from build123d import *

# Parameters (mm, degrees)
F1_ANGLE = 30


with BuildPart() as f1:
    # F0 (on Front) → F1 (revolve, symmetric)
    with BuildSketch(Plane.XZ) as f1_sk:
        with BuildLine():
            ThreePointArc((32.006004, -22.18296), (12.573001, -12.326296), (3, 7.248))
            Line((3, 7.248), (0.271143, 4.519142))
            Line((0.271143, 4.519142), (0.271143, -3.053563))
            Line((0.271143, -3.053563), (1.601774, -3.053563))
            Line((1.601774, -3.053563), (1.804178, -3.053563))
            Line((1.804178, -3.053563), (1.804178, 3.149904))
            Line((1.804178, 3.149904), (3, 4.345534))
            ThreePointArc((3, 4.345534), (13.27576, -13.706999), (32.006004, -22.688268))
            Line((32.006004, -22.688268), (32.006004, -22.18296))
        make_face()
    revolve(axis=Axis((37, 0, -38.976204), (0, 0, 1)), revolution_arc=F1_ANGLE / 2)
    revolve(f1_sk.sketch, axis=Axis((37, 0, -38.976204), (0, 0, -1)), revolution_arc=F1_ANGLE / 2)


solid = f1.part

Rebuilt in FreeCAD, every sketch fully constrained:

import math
import FreeCAD as App
import Part
import Sketcher
Q = App.Units.Quantity

doc = App.newDocument("Part")
body = doc.addObject("PartDesign::Body", "Body")

sketch1 = body.newObject("Sketcher::SketchObject", "Sketch")
sketch1.AttachmentSupport = (doc.getObject("XZ_Plane"), [""])
sketch1.MapMode = "FlatFace"
sketch1.addGeometry([
    Part.ArcOfCircle(Part.Circle(App.Vector(37, 11.7, 0), App.Vector(0, 0, 1), 34.3), math.radians(-172), math.radians(-98)),
    Part.LineSegment(App.Vector(3, 7.2, 0), App.Vector(0.3, 4.5, 0)),
    Part.LineSegment(App.Vector(0.3, 4.5, 0), App.Vector(0.3, -3.1, 0)),
    Part.LineSegment(App.Vector(0.3, -3.1, 0), App.Vector(1.8, -3.1, 0)),
    Part.LineSegment(App.Vector(1.8, -3.1, 0), App.Vector(1.8, 3.1, 0)),
    Part.LineSegment(App.Vector(1.8, 3.1, 0), App.Vector(3, 4.3, 0)),
    Part.ArcOfCircle(Part.Circle(App.Vector(37, 11.7, 0), App.Vector(0, 0, 1), 34.8), math.radians(-168), math.radians(-98)),
    Part.LineSegment(App.Vector(32, -22.7, 0), App.Vector(32, -22.2, 0)),
], False)
sketch1.addGeometry(Part.LineSegment(App.Vector(37, -22.7, 0), App.Vector(37, 11.7, 0)), True)
sketch1.addConstraint([
    Sketcher.Constraint("Coincident", 0, 1, 1, 1),
    Sketcher.Constraint("Coincident", 1, 2, 2, 1),
    Sketcher.Constraint("Coincident", 2, 2, 3, 1),
    Sketcher.Constraint("Coincident", 3, 2, 4, 1),
    Sketcher.Constraint("Coincident", 4, 2, 5, 1),
    Sketcher.Constraint("Coincident", 5, 2, 6, 1),
    Sketcher.Constraint("Coincident", 6, 2, 7, 1),
    Sketcher.Constraint("Coincident", 7, 2, 0, 2),
    Sketcher.Constraint("Vertical", 2),
    Sketcher.Constraint("Horizontal", 3),
    Sketcher.Constraint("Vertical", 4),
    Sketcher.Constraint("Vertical", 7),
    Sketcher.Constraint("Vertical", 8),
    Sketcher.Constraint("Coincident", 6, 3, 0, 3),
    Sketcher.Constraint("Coincident", 8, 2, 0, 3),
    Sketcher.Constraint("Horizontal", 6, 2, 8, 1),
    Sketcher.Constraint("Vertical", 0, 1, 5, 2),
    Sketcher.Constraint("Angle", 1, Q("-134.99999 deg")),
    Sketcher.Constraint("DistanceX", -1, 1, 0, 3, Q("37.000001 mm")),
    Sketcher.Constraint("DistanceX", -1, 1, 0, 1, Q("3 mm")),
    Sketcher.Constraint("Radius", 6, Q("34.796501 mm")),
    Sketcher.Constraint("DistanceY", 0, 1, 6, 3, Q("4.499999 mm")),
    Sketcher.Constraint("DistanceY", -1, 1, 0, 3, Q("11.748 mm")),
    Sketcher.Constraint("DistanceY", 8, 1, 8, 2, Q("34.436268 mm")),
    Sketcher.Constraint("Distance", 5, Q("1.691012 mm")),
    Sketcher.Constraint("DistanceX", 3, 1, 3, 2, Q("1.533035 mm")),
    Sketcher.Constraint("DistanceY", 2, 2, 2, 1, Q("7.572705 mm")),
    Sketcher.Constraint("DistanceY", 4, 1, 4, 2, Q("6.203467 mm")),
])
revolution = body.newObject("PartDesign::Revolution", "Revolution")
revolution.Profile = sketch1
revolution.ReferenceAxis = (sketch1, ["Axis0"])
revolution.Angle = 15

sketch2 = body.newObject("Sketcher::SketchObject", "Sketch001")
sketch2.AttachmentSupport = (doc.getObject("XZ_Plane"), [""])
sketch2.MapMode = "FlatFace"
sketch2.addGeometry([
    Part.ArcOfCircle(Part.Circle(App.Vector(37, 11.7, 0), App.Vector(0, 0, 1), 34.3), math.radians(-172), math.radians(-98)),
    Part.LineSegment(App.Vector(3, 7.2, 0), App.Vector(0.3, 4.5, 0)),
    Part.LineSegment(App.Vector(0.3, 4.5, 0), App.Vector(0.3, -3.1, 0)),
    Part.LineSegment(App.Vector(0.3, -3.1, 0), App.Vector(1.8, -3.1, 0)),
    Part.LineSegment(App.Vector(1.8, -3.1, 0), App.Vector(1.8, 3.1, 0)),
    Part.LineSegment(App.Vector(1.8, 3.1, 0), App.Vector(3, 4.3, 0)),
    Part.ArcOfCircle(Part.Circle(App.Vector(37, 11.7, 0), App.Vector(0, 0, 1), 34.8), math.radians(-168), math.radians(-98)),
    Part.LineSegment(App.Vector(32, -22.7, 0), App.Vector(32, -22.2, 0)),
], False)
sketch2.addGeometry(Part.LineSegment(App.Vector(37, 11.7, 0), App.Vector(37, -22.7, 0)), True)
sketch2.addConstraint([
    Sketcher.Constraint("Coincident", 0, 1, 1, 1),
    Sketcher.Constraint("Coincident", 1, 2, 2, 1),
    Sketcher.Constraint("Coincident", 2, 2, 3, 1),
    Sketcher.Constraint("Coincident", 3, 2, 4, 1),
    Sketcher.Constraint("Coincident", 4, 2, 5, 1),
    Sketcher.Constraint("Coincident", 5, 2, 6, 1),
    Sketcher.Constraint("Coincident", 6, 2, 7, 1),
    Sketcher.Constraint("Coincident", 7, 2, 0, 2),
    Sketcher.Constraint("Vertical", 2),
    Sketcher.Constraint("Horizontal", 3),
    Sketcher.Constraint("Vertical", 4),
    Sketcher.Constraint("Vertical", 7),
    Sketcher.Constraint("Vertical", 8),
    Sketcher.Constraint("Coincident", 6, 3, 0, 3),
    Sketcher.Constraint("Coincident", 8, 1, 0, 3),
    Sketcher.Constraint("Horizontal", 6, 2, 8, 2),
    Sketcher.Constraint("Vertical", 0, 1, 5, 2),
    Sketcher.Constraint("Angle", 1, Q("-134.99999 deg")),
    Sketcher.Constraint("DistanceX", -1, 1, 0, 3, Q("37.000001 mm")),
    Sketcher.Constraint("DistanceX", -1, 1, 0, 1, Q("3 mm")),
    Sketcher.Constraint("Radius", 6, Q("34.796501 mm")),
    Sketcher.Constraint("DistanceY", 0, 1, 6, 3, Q("4.499999 mm")),
    Sketcher.Constraint("DistanceY", -1, 1, 0, 3, Q("11.748 mm")),
    Sketcher.Constraint("DistanceY", 8, 2, 8, 1, Q("34.436268 mm")),
    Sketcher.Constraint("Distance", 5, Q("1.691012 mm")),
    Sketcher.Constraint("DistanceX", 3, 1, 3, 2, Q("1.533035 mm")),
    Sketcher.Constraint("DistanceY", 2, 2, 2, 1, Q("7.572705 mm")),
    Sketcher.Constraint("DistanceY", 4, 1, 4, 2, Q("6.203467 mm")),
])
revolution2 = body.newObject("PartDesign::Revolution", "Revolution001")
revolution2.Profile = sketch2
revolution2.ReferenceAxis = (sketch2, ["Axis0"])
revolution2.Angle = 15

doc.recompute()
